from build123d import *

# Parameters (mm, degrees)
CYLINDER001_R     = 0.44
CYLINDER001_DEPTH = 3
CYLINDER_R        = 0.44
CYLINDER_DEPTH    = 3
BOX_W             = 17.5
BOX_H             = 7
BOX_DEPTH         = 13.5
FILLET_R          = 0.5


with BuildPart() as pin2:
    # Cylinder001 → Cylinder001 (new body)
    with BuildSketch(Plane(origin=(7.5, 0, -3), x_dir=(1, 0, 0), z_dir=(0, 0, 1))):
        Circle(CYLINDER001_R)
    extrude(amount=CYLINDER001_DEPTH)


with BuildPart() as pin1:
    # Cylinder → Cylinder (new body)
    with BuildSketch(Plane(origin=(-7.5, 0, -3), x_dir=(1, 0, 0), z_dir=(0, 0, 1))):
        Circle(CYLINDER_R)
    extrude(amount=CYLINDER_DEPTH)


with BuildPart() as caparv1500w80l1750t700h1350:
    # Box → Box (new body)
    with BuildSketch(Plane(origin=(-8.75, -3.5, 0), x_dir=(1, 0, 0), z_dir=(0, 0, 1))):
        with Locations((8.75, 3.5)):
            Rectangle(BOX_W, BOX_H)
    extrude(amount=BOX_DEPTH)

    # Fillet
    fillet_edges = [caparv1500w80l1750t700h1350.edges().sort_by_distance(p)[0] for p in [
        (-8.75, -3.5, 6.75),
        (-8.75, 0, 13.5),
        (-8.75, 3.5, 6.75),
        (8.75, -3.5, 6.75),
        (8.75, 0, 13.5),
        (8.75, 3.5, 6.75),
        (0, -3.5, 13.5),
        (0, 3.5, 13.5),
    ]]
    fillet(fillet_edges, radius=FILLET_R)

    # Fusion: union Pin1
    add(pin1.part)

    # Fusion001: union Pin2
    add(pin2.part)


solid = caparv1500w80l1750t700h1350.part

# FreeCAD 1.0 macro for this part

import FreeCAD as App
import Part
import Sketcher


def edges_at(feature, points):
    """Names of the edges that pass closest to the given points."""
    edges = feature.Shape.Edges
    near = lambda p: min(range(len(edges)), key=lambda i: edges[i].distToShape(Part.Vertex(*p))[0])
    return sorted({f"Edge{near(p) + 1}" for p in points})

doc = App.newDocument("Part")
body = doc.addObject("PartDesign::Body", "Body")

sketch1 = body.newObject("Sketcher::SketchObject", "Sketch")
sketch1.AttachmentSupport = (doc.getObject("XY_Plane"), [""])
sketch1.MapMode = "FlatFace"
sketch1.AttachmentOffset = App.Placement(App.Vector(0, 0, -3), App.Rotation())
sketch1.addGeometry(Part.Circle(App.Vector(7.5, 0, 0), App.Vector(0, 0, 1), 0.44), False)
sketch1.addConstraint([
    Sketcher.Constraint("PointOnObject", 0, 3, -1),
    Sketcher.Constraint("Diameter", 0, 0.88),
    Sketcher.Constraint("DistanceX", -1, 1, 0, 3, 7.5),
])
pad1 = body.newObject("PartDesign::Pad", "Pad")
pad1.Profile = sketch1
pad1.Length = 3
body2 = doc.addObject("PartDesign::Body", "Body001")

sketch2 = body2.newObject("Sketcher::SketchObject", "Sketch001")
sketch2.AttachmentSupport = (doc.getObject("XY_Plane001"), [""])
sketch2.MapMode = "FlatFace"
sketch2.AttachmentOffset = App.Placement(App.Vector(0, 0, -3), App.Rotation())
sketch2.addGeometry(Part.Circle(App.Vector(-7.5, 0, 0), App.Vector(0, 0, 1), 0.44), False)
sketch2.addConstraint([
    Sketcher.Constraint("PointOnObject", 0, 3, -1),
    Sketcher.Constraint("Diameter", 0, 0.88),
    Sketcher.Constraint("DistanceX", 0, 3, -1, 1, 7.5),
])
pad2 = body2.newObject("PartDesign::Pad", "Pad001")
pad2.Profile = sketch2
pad2.Length = 3
body3 = doc.addObject("PartDesign::Body", "Body002")

sketch3 = body3.newObject("Sketcher::SketchObject", "Sketch002")
sketch3.AttachmentSupport = (doc.getObject("XY_Plane002"), [""])
sketch3.MapMode = "FlatFace"
sketch3.addGeometry([
    Part.LineSegment(App.Vector(-8.75, 3.5, 0), App.Vector(-8.75, -3.5, 0)),
    Part.LineSegment(App.Vector(-8.75, -3.5, 0), App.Vector(8.75, -3.5, 0)),
    Part.LineSegment(App.Vector(8.75, -3.5, 0), App.Vector(8.75, 3.5, 0)),
    Part.LineSegment(App.Vector(8.75, 3.5, 0), App.Vector(-8.75, 3.5, 0)),
], False)
sketch3.addConstraint([
    Sketcher.Constraint("Coincident", 0, 2, 1, 1),
    Sketcher.Constraint("Coincident", 1, 2, 2, 1),
    Sketcher.Constraint("Coincident", 2, 2, 3, 1),
    Sketcher.Constraint("Coincident", 3, 2, 0, 1),
    Sketcher.Constraint("Vertical", 0),
    Sketcher.Constraint("Horizontal", 1),
    Sketcher.Constraint("Vertical", 2),
    Sketcher.Constraint("Horizontal", 3),
    Sketcher.Constraint("Symmetric", 0, 2, 2, 2, -1, 1),
    Sketcher.Constraint("DistanceY", 0, 2, 0, 1, 7.0),
    Sketcher.Constraint("DistanceX", 1, 1, 1, 2, 17.5),
])
pad3 = body3.newObject("PartDesign::Pad", "Pad002")
pad3.Profile = sketch3
pad3.Length = 13.5
doc.recompute()

fillet = body3.newObject("PartDesign::Fillet", "Fillet")
fillet.Base = (pad3, edges_at(pad3, [
    (-8.75, -3.5, 6.75),
    (-8.75, 0, 13.5),
    (-8.75, 3.5, 6.75),
    (8.75, -3.5, 6.75),
    (8.75, 0, 13.5),
    (8.75, 3.5, 6.75),
    (0, -3.5, 13.5),
    (0, 3.5, 13.5),
]))
fillet.Radius = 0.5
doc.recompute()

boolean = body3.newObject("PartDesign::Boolean", "Boolean")
boolean.Type = "Fuse"
boolean.addObjects([body2])
doc.recompute()

boolean2 = body3.newObject("PartDesign::Boolean", "Boolean001")
boolean2.Type = "Fuse"
boolean2.addObjects([body])

doc.recompute()
